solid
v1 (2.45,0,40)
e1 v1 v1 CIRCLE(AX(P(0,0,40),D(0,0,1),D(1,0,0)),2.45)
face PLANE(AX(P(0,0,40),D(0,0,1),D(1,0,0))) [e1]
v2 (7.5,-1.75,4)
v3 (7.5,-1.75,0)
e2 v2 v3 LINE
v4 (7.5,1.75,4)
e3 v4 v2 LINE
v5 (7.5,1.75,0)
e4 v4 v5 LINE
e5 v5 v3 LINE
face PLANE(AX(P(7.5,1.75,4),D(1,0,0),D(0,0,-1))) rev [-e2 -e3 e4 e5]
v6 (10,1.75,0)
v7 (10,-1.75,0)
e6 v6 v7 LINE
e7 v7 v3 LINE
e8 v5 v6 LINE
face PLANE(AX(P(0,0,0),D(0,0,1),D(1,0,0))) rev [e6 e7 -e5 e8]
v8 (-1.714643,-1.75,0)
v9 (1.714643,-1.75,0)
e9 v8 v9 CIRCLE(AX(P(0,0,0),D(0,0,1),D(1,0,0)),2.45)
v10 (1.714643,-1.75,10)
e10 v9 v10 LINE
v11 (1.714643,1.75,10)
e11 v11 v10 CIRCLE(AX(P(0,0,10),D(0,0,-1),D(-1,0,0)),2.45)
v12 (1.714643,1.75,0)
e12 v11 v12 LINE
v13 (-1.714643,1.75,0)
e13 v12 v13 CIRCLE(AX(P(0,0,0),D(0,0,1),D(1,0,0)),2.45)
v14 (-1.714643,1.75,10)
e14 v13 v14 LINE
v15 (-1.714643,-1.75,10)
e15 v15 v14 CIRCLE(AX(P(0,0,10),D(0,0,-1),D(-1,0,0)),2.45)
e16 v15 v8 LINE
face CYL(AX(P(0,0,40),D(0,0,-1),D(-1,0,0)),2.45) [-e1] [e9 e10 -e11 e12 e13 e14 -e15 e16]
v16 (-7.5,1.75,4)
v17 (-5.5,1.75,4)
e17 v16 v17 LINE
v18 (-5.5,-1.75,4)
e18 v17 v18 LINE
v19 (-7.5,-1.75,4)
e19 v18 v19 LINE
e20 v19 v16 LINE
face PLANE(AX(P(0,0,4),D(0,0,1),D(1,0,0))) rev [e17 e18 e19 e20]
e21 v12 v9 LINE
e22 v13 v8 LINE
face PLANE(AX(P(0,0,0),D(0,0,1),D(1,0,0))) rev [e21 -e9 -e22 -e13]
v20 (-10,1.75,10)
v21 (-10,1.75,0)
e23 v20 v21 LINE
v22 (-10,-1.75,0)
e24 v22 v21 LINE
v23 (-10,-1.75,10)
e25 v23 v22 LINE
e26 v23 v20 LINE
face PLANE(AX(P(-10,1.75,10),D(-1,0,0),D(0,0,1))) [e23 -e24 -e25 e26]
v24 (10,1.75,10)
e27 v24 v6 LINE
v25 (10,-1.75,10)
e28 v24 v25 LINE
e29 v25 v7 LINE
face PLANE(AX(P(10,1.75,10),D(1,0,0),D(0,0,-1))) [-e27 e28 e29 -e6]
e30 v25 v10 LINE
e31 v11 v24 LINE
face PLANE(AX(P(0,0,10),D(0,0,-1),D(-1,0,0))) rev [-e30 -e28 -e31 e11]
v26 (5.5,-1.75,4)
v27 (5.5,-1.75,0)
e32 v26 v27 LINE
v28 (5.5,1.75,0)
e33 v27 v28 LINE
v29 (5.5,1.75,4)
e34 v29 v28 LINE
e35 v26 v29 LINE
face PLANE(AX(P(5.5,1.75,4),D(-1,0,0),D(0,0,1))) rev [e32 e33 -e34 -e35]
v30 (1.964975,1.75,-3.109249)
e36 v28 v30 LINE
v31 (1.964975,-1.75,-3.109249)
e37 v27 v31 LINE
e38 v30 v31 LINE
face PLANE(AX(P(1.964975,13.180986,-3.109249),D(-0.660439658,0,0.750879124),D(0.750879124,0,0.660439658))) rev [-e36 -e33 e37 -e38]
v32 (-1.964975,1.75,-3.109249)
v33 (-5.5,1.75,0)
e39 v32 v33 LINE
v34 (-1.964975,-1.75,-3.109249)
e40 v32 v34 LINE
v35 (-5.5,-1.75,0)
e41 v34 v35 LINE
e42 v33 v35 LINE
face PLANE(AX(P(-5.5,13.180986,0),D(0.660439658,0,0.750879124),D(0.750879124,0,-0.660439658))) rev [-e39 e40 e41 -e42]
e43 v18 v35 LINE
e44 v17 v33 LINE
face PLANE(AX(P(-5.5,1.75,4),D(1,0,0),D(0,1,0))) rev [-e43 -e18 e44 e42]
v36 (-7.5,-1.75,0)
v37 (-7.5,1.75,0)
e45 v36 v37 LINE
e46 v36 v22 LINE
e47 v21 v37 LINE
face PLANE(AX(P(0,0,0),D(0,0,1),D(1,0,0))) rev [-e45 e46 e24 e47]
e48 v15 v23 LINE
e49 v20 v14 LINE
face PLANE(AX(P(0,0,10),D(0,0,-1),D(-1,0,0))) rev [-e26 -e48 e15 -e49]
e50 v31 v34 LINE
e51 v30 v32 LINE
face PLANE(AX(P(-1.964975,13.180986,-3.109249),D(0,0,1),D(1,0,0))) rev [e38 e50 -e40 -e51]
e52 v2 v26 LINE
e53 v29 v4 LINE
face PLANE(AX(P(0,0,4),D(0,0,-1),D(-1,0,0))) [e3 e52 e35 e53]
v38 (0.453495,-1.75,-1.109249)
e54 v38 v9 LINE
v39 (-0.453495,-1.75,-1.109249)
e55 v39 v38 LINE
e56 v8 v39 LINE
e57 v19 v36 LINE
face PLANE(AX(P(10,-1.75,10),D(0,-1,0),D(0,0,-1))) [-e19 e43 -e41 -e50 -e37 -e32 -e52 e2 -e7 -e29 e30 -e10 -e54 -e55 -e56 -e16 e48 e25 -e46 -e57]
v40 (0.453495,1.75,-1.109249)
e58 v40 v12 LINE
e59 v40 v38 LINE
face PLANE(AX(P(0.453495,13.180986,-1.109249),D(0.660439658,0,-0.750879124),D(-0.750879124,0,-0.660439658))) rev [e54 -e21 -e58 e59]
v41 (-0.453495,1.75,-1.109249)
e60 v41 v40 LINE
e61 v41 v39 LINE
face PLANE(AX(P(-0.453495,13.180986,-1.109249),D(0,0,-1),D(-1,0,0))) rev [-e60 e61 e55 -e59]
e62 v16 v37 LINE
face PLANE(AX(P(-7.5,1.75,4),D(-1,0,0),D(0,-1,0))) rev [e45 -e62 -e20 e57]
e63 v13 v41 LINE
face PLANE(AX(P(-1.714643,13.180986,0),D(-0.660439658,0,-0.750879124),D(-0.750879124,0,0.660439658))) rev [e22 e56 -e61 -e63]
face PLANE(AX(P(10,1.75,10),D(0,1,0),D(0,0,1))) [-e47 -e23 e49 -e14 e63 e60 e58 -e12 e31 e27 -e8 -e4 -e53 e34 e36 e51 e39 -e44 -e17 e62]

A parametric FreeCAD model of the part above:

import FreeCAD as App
import Part
import Sketcher

V = App.Vector
Q = App.Units.Quantity

doc = App.newDocument("Part")
body = doc.addObject("PartDesign::Body", "Body")

sketch1 = body.newObject("Sketcher::SketchObject", "Sketch")
sketch1.AttachmentSupport = (doc.getObject("XY_Plane"), [""])
sketch1.MapMode = "FlatFace"
sketch1.addGeometry(Part.Circle(V(0, 0, 0), V(0, 0, 1), 2.45), False)
sketch1.addConstraint([
    Sketcher.Constraint("Coincident", 0, 3, -1, 1),
    Sketcher.Constraint("Diameter", 0, Q("4.9 mm")),
])
pad1 = body.newObject("PartDesign::Pad", "Pad")
pad1.Profile = sketch1
pad1.Length = 40

sketch2 = body.newObject("Sketcher::SketchObject", "Sketch001")
sketch2.AttachmentSupport = (doc.getObject("XY_Plane"), [""])
sketch2.MapMode = "FlatFace"
sketch2.addGeometry([
    Part.LineSegment(V(10, 1.75, 0), V(10, -1.75, 0)),
    Part.LineSegment(V(10, -1.75, 0), V(-10, -1.75, 0)),
    Part.LineSegment(V(-10, -1.75, 0), V(-10, 1.75, 0)),
    Part.LineSegment(V(-10, 1.75, 0), V(10, 1.75, 0)),
], False)
sketch2.addConstraint([
    Sketcher.Constraint("Coincident", 0, 2, 1, 1),
    Sketcher.Constraint("Coincident", 1, 2, 2, 1),
    Sketcher.Constraint("Coincident", 2, 2, 3, 1),
    Sketcher.Constraint("Coincident", 3, 2, 0, 1),
    Sketcher.Constraint("Vertical", 0),
    Sketcher.Constraint("Horizontal", 1),
    Sketcher.Constraint("Vertical", 2),
    Sketcher.Constraint("Horizontal", 3),
    Sketcher.Constraint("Symmetric", 0, 2, 2, 2, -1, 1),
    Sketcher.Constraint("DistanceX", 1, 2, 1, 1, Q("20 mm")),
    Sketcher.Constraint("DistanceY", 0, 2, 0, 1, Q("3.5 mm")),
])
pad2 = body.newObject("PartDesign::Pad", "Pad001")
pad2.Profile = sketch2
pad2.Length = 10

sketch3 = body.newObject("Sketcher::SketchObject", "Sketch002")
sketch3.AttachmentSupport = (doc.getObject("XY_Plane"), [""])
sketch3.MapMode = "FlatFace"
sketch3.addGeometry([
    Part.LineSegment(V(7.5, 1.75, 0), V(7.5, -1.75, 0)),
    Part.LineSegment(V(7.5, -1.75, 0), V(5.5, -1.75, 0)),
    Part.LineSegment(V(5.5, -1.75, 0), V(5.5, 1.75, 0)),
    Part.LineSegment(V(5.5, 1.75, 0), V(7.5, 1.75, 0)),
    Part.LineSegment(V(-5.5, 1.75, 0), V(-5.5, -1.75, 0)),
    Part.LineSegment(V(-5.5, -1.75, 0), V(-7.5, -1.75, 0)),
    Part.LineSegment(V(-7.5, -1.75, 0), V(-7.5, 1.75, 0)),
    Part.LineSegment(V(-7.5, 1.75, 0), V(-5.5, 1.75, 0)),
], False)
sketch3.addConstraint([
    Sketcher.Constraint("Coincident", 0, 2, 1, 1),
    Sketcher.Constraint("Coincident", 1, 2, 2, 1),
    Sketcher.Constraint("Coincident", 2, 2, 3, 1),
    Sketcher.Constraint("Coincident", 3, 2, 0, 1),
    Sketcher.Constraint("Coincident", 4, 2, 5, 1),
    Sketcher.Constraint("Coincident", 5, 2, 6, 1),
    Sketcher.Constraint("Coincident", 6, 2, 7, 1),
    Sketcher.Constraint("Coincident", 7, 2, 4, 1),
    Sketcher.Constraint("Vertical", 0),
    Sketcher.Constraint("Horizontal", 1),
    Sketcher.Constraint("Vertical", 2),
    Sketcher.Constraint("Horizontal", 3),
    Sketcher.Constraint("Vertical", 4),
    Sketcher.Constraint("Horizontal", 5),
    Sketcher.Constraint("Vertical", 6),
    Sketcher.Constraint("Horizontal", 7),
    Sketcher.Constraint("Symmetric", 2, 2, 4, 2, -1, 1),
    Sketcher.Constraint("Symmetric", 0, 2, 6, 2, -1, 1),
    Sketcher.Constraint("Horizontal", 1, 2, 4, 2),
    Sketcher.Constraint("DistanceX", 1, 2, 1, 1, Q("2 mm")),
    Sketcher.Constraint("DistanceY", 0, 2, 0, 1, Q("3.5 mm")),
    Sketcher.Constraint("DistanceX", 4, 2, 1, 2, Q("11 mm")),
])
pocket1 = body.newObject("PartDesign::Pocket", "Pocket")
pocket1.Profile = sketch3
pocket1.Length = 4
pocket1.Reversed = True

sketch4 = body.newObject("Sketcher::SketchObject", "Sketch003")
sketch4.AttachmentSupport = (doc.getObject("XZ_Plane"), [""])
sketch4.MapMode = "FlatFace"
sketch4.AttachmentOffset = App.Placement(V(0, 0, 1.75), App.Rotation())
sketch4.addGeometry([
    Part.LineSegment(V(-1.714643, 0, 0), V(-0.453495, -1.109249, 0)),
    Part.LineSegment(V(-0.453495, -1.109249, 0), V(0.453495, -1.109249, 0)),
    Part.LineSegment(V(0.453495, -1.109249, 0), V(1.714643, 0, 0)),
    Part.LineSegment(V(1.714643, 0, 0), V(5.5, 0, 0)),
    Part.LineSegment(V(5.5, 0, 0), V(1.964975, -3.109249, 0)),
    Part.LineSegment(V(1.964975, -3.109249, 0), V(-1.964975, -3.109249, 0)),
    Part.LineSegment(V(-1.964975, -3.109249, 0), V(-5.5, 0, 0)),
    Part.LineSegment(V(-5.5, 0, 0), V(-1.714643, 0, 0)),
], False)
sketch4.addConstraint([
    Sketcher.Constraint("Coincident", 0, 2, 1, 1),
    Sketcher.Constraint("Coincident", 1, 2, 2, 1),
    Sketcher.Constraint("Coincident", 2, 2, 3, 1),
    Sketcher.Constraint("Coincident", 3, 2, 4, 1),
    Sketcher.Constraint("Coincident", 4, 2, 5, 1),
    Sketcher.Constraint("Coincident", 5, 2, 6, 1),
    Sketcher.Constraint("Coincident", 6, 2, 7, 1),
    Sketcher.Constraint("Coincident", 7, 2, 0, 1),
    Sketcher.Constraint("Horizontal", 1),
    Sketcher.Constraint("Horizontal", 3),
    Sketcher.Constraint("Horizontal", 5),
    Sketcher.Constraint("Horizontal", 7),
    Sketcher.Constraint("Symmetric", 3, 2, 6, 2, -1, 1),
    Sketcher.Constraint("Symmetric", 2, 2, 7, 2, -2),
    Sketcher.Constraint("Parallel", 2, 4),
    Sketcher.Constraint("Parallel", 0, 6),
    Sketcher.Constraint("Equal", 0, 2),
    Sketcher.Constraint("DistanceY", 4, 2, 1, 2, Q("2 mm")),
    Sketcher.Constraint("DistanceX", -1, 1, 3, 2, Q("5.5 mm")),
    Sketcher.Constraint("DistanceX", 1, 1, 1, 2, Q("0.906989 mm")),
    Sketcher.Constraint("DistanceX", 5, 2, 5, 1, Q("3.929951 mm")),
    Sketcher.Constraint("DistanceX", 3, 1, 3, 2, Q("3.785357 mm")),
])
pad3 = body.newObject("PartDesign::Pad", "Pad002")
pad3.Profile = sketch4
pad3.Length = 3.5
pad3.Reversed = True

doc.recompute()
